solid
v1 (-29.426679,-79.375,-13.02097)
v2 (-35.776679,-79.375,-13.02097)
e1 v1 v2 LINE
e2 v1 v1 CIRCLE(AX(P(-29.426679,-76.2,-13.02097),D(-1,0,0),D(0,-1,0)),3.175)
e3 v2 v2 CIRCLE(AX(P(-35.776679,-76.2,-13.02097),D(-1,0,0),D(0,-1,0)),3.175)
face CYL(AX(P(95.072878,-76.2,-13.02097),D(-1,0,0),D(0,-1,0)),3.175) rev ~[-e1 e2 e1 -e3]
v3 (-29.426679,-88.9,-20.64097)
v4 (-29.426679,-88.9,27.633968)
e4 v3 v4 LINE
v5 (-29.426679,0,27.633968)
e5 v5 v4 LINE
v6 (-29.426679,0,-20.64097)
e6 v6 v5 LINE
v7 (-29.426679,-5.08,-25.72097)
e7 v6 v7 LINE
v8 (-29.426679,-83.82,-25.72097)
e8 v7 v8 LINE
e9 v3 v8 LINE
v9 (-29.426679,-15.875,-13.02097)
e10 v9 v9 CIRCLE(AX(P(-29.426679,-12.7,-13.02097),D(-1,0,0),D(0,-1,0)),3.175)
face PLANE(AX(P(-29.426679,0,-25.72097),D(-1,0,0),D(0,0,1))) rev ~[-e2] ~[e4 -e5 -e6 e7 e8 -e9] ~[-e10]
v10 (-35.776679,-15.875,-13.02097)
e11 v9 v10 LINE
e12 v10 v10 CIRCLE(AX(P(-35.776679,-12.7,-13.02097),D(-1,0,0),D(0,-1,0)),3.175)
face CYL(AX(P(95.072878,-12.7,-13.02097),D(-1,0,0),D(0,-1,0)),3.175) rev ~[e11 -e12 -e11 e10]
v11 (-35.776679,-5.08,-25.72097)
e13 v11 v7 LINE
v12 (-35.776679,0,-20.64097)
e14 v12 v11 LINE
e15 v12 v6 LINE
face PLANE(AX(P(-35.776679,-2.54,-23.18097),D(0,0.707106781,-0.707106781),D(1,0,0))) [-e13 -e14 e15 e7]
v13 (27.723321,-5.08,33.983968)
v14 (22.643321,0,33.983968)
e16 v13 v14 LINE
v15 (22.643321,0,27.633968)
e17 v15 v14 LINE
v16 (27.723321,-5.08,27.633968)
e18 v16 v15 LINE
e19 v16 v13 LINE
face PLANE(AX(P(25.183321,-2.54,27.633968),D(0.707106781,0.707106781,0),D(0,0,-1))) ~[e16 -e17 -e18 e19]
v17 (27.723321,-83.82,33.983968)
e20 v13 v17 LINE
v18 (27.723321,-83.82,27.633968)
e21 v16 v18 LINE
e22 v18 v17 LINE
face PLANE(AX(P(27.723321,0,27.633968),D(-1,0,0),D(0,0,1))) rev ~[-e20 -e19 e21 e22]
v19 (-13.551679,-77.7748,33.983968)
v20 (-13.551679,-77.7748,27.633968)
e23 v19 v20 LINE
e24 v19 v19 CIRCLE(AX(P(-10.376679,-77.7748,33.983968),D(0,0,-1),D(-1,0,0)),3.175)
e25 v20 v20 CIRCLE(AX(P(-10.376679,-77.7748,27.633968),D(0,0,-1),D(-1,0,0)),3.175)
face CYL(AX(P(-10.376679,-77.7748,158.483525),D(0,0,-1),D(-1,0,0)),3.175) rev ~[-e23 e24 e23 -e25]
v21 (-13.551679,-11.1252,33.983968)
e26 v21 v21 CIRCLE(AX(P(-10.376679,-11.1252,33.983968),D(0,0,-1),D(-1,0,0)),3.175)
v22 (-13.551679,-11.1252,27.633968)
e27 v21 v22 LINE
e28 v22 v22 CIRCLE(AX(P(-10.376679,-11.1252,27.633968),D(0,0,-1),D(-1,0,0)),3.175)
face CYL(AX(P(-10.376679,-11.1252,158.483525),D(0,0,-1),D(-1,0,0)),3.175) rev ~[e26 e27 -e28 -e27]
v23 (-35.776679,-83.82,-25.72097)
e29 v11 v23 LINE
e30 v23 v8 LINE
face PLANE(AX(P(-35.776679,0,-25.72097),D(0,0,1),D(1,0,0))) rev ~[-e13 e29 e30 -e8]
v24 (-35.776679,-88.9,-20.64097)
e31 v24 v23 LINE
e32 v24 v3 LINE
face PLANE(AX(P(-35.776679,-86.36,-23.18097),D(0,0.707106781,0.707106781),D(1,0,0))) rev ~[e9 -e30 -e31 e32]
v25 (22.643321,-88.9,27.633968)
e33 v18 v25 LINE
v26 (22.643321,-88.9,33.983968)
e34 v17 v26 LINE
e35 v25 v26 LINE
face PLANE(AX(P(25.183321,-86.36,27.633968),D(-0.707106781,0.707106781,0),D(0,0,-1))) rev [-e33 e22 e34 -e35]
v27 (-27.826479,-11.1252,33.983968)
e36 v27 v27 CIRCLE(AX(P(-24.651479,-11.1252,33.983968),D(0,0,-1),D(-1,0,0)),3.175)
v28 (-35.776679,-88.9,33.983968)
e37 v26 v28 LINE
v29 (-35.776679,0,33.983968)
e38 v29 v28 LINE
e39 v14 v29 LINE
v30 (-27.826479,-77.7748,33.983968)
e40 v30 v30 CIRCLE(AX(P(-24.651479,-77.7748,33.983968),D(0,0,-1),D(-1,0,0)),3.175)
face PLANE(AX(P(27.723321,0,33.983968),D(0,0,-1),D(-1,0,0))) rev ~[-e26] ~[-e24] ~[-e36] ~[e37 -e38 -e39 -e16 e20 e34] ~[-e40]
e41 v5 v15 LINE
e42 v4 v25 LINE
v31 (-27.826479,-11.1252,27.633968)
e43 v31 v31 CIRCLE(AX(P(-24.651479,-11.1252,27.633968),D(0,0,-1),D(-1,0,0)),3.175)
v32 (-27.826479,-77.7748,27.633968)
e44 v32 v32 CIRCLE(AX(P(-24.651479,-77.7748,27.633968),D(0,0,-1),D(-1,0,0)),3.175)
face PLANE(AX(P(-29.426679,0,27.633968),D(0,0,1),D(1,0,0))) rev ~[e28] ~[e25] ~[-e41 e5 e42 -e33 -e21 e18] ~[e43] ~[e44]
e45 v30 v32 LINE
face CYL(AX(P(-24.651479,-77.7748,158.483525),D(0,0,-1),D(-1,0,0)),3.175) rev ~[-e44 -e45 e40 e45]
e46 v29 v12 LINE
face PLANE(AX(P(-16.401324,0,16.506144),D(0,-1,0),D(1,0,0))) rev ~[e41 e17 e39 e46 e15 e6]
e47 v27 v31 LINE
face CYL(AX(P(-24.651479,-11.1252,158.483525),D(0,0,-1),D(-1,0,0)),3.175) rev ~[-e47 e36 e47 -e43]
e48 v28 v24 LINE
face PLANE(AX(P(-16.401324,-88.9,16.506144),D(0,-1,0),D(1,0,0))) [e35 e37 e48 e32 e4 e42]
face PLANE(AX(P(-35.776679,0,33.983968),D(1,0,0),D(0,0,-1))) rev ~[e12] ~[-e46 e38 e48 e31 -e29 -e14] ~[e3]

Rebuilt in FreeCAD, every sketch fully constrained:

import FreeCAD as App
import Part
import Sketcher

V = App.Vector
Q = App.Units.Quantity


def edges_at(feature, points):
    """Names of the edges that pass closest to the given points."""
    edges = feature.Shape.Edges
    near = lambda p: min(range(len(edges)), key=lambda i: edges[i].distToShape(Part.Vertex(*p))[0])
    return sorted({f"Edge{near(p) + 1}" for p in points})


def add_polygon(sketch, points):
    """Adds a closed chain of lines whose ends are joined by coincident constraints."""
    first, n = sketch.GeometryCount, len(points)
    for a, b in zip(points, points[1:] + points[:1]):
        sketch.addGeometry(Part.LineSegment(App.Vector(*a, 0), App.Vector(*b, 0)), False)
    for i in range(n):
        sketch.addConstraint(Sketcher.Constraint("Coincident", first + i, 2, first + (i + 1) % n, 1))

doc = App.newDocument("Part")
params = doc.addObject("Spreadsheet::Sheet", "Params")
for row, (alias, value) in enumerate([
    ("sketch1_width", "2.5 in"),
    ("sketch1_width2", "0.25 in"),
    ("pad1_length", "3.5 in"),
    ("sketch2_diameter", "0.25 in"),
    ("hole_diameter", "0.25 in"),
    ("chamfer_size", "0.2 in"),
    ("sketch3_diameter", "0.25 in"),
    ("hole2_diameter", "0.25 in"),
], start=1):
    params.set(f"A{row}", alias)
    params.set(f"B{row}", "=" + value)
    params.setAlias(f"B{row}", alias)

body = doc.addObject("PartDesign::Body", "Body")

sketch1 = body.newObject("Sketcher::SketchObject", "Sketch")
sketch1.AttachmentSupport = (doc.getObject("XZ_Plane"), [""])
sketch1.MapMode = "FlatFace"
add_polygon(sketch1, [(28, 34), (-36, 34), (-36, -26), (-29, -26), (-29, 28), (28, 28)])
sketch1.addConstraint([
    Sketcher.Constraint("Horizontal", 0),
    Sketcher.Constraint("Vertical", 1),
    Sketcher.Constraint("Horizontal", 2),
    Sketcher.Constraint("Vertical", 3),
    Sketcher.Constraint("Horizontal", 4),
    Sketcher.Constraint("Vertical", 5),
    Sketcher.Constraint("Equal", 2, 5),
    Sketcher.Constraint("DistanceX", 0, 2, 0, 1, Q("2.5 in")),
    Sketcher.Constraint("DistanceX", 2, 1, 2, 2, Q("0.25 in")),
    Sketcher.Constraint("DistanceY", 3, 1, 3, 2, Q("53.354938 mm")),
    Sketcher.Constraint("DistanceX", 0, 2, -1, 1, Q("35.776679 mm")),
    Sketcher.Constraint("DistanceY", 1, 2, -1, 1, Q("25.72097 mm")),
])
sketch1.setExpression("Constraints[13]", "Params.sketch1_width")
sketch1.setExpression("Constraints[14]", "Params.sketch1_width2")
pad1 = body.newObject("PartDesign::Pad", "Pad")
pad1.Profile = sketch1
pad1.setExpression("Length", "Params.pad1_length")

sketch2 = body.newObject("Sketcher::SketchObject", "Sketch001")
sketch2.AttachmentSupport = (doc.getObject("YZ_Plane"), [""])
sketch2.MapMode = "FlatFace"
sketch2.AttachmentOffset = App.Placement(V(0, 0, -29.426679), App.Rotation())
sketch2.addGeometry([
    Part.Circle(V(-76.2, -13, 0), V(0, 0, 1), 3.2),
    Part.Circle(V(-12.7, -13, 0), V(0, 0, 1), 3.2),
], False)
sketch2.addConstraint([
    Sketcher.Constraint("Equal", 0, 1),
    Sketcher.Constraint("Horizontal", 0, 3, 1, 3),
    Sketcher.Constraint("Diameter", 0, Q("0.25 in")),
    Sketcher.Constraint("DistanceX", 0, 3, -1, 1, Q("3 in")),
    Sketcher.Constraint("DistanceX", 1, 3, -1, 1, Q("0.5 in")),
    Sketcher.Constraint("DistanceY", 0, 3, -1, 1, Q("13.02097 mm")),
])
sketch2.setExpression("Constraints[2]", "Params.sketch2_diameter")
doc.recompute()
hole = body.newObject("PartDesign::Hole", "Hole")
hole.Profile = sketch2
hole.ThreadType = "None"
hole.setExpression("Diameter", "Params.hole_diameter")
hole.DepthType = "ThroughAll"
doc.recompute()

chamfer = body.newObject("PartDesign::Chamfer", "Chamfer")
chamfer.Base = (hole, edges_at(hole, [
    (-32.602, -88.9, -25.721),
    (27.723, -88.9, 30.809),
    (27.723, 0, 30.809),
    (-32.602, 0, -25.721),
]))
chamfer.setExpression("Size", "Params.chamfer_size")

sketch3 = body.newObject("Sketcher::SketchObject", "Sketch002")
sketch3.AttachmentSupport = (doc.getObject("XY_Plane"), [""])
sketch3.MapMode = "FlatFace"
sketch3.AttachmentOffset = App.Placement(V(0, 0, 33.983968), App.Rotation())
sketch3.addGeometry([
    Part.Circle(V(-10.4, -11.1, 0), V(0, 0, 1), 3.2),
    Part.Circle(V(-24.7, -11.1, 0), V(0, 0, 1), 3.2),
    Part.Circle(V(-24.7, -77.8, 0), V(0, 0, 1), 3.2),
    Part.Circle(V(-10.4, -77.8, 0), V(0, 0, 1), 3.2),
], False)
sketch3.addConstraint([
    Sketcher.Constraint("Equal", 0, 1),
    Sketcher.Constraint("Equal", 1, 2),
    Sketcher.Constraint("Equal", 2, 3),
    Sketcher.Constraint("Horizontal", 0, 3, 1, 3),
    Sketcher.Constraint("Horizontal", 2, 3, 3, 3),
    Sketcher.Constraint("Vertical", 1, 3, 2, 3),
    Sketcher.Constraint("Vertical", 0, 3, 3, 3),
    Sketcher.Constraint("Diameter", 0, Q("0.25 in")),
    Sketcher.Constraint("DistanceY", 0, 3, -1, 1, Q("0.438 in")),
    Sketcher.Constraint("DistanceY", 2, 3, -1, 1, Q("3.062 in")),
    Sketcher.Constraint("DistanceX", 1, 3, 0, 3, Q("0.562 in")),
    Sketcher.Constraint("DistanceX", 0, 3, -1, 1, Q("10.376679 mm")),
])
sketch3.setExpression("Constraints[7]", "Params.sketch3_diameter")
doc.recompute()
hole2 = body.newObject("PartDesign::Hole", "Hole001")
hole2.Profile = sketch3
hole2.ThreadType = "None"
hole2.setExpression("Diameter", "Params.hole2_diameter")
hole2.DepthType = "ThroughAll"

doc.recompute()
